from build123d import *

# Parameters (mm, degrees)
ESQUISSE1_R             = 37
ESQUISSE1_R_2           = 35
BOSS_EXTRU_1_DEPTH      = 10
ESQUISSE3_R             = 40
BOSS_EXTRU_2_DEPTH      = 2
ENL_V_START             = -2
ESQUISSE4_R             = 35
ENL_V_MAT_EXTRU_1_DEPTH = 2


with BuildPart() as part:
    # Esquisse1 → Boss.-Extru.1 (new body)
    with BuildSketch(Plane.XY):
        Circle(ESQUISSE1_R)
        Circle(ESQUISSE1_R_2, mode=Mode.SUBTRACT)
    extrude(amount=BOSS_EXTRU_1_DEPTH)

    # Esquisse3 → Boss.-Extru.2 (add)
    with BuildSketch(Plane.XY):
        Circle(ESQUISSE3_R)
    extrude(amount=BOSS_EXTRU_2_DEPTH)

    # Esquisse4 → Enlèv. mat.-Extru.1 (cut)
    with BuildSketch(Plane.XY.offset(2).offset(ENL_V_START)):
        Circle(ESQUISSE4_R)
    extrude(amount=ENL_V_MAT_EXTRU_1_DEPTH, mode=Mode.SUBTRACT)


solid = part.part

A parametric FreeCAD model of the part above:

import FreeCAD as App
import Part
import Sketcher
Q = App.Units.Quantity

doc = App.newDocument("Part")
body = doc.addObject("PartDesign::Body", "Body")

# Sketch on XY plane
sketch1 = body.newObject("Sketcher::SketchObject", "Sketch")
sketch1.AttachmentSupport = (doc.getObject("XY_Plane"), [""])
sketch1.MapMode = "FlatFace"
sketch1.addGeometry([
    Part.Circle(App.Vector(0, 0, 0), App.Vector(0, 0, 1), 37),
    Part.Circle(App.Vector(0, 0, 0), App.Vector(0, 0, 1), 35),
], False)
sketch1.addConstraint([
    Sketcher.Constraint("Coincident", 0, 3, -1, 1),
    Sketcher.Constraint("Coincident", 1, 3, -1, 1),
    Sketcher.Constraint("Diameter", 0, Q("74 mm")),
    Sketcher.Constraint("Diameter", 1, Q("70 mm")),
])
pad1 = body.newObject("PartDesign::Pad", "Pad")
pad1.Profile = sketch1
pad1.Length = 10

# Sketch on XY plane
sketch2 = body.newObject("Sketcher::SketchObject", "Sketch001")
sketch2.AttachmentSupport = (doc.getObject("XY_Plane"), [""])
sketch2.MapMode = "FlatFace"
sketch2.addGeometry(Part.Circle(App.Vector(0, 0, 0), App.Vector(0, 0, 1), 40), False)
sketch2.addConstraint([
    Sketcher.Constraint("Coincident", 0, 3, -1, 1),
    Sketcher.Constraint("Diameter", 0, Q("80 mm")),
])
pad2 = body.newObject("PartDesign::Pad", "Pad001")
pad2.Profile = sketch2
pad2.Length = 2

# Sketch on XY plane
sketch3 = body.newObject("Sketcher::SketchObject", "Sketch002")
sketch3.AttachmentSupport = (doc.getObject("XY_Plane"), [""])
sketch3.MapMode = "FlatFace"
sketch3.addGeometry(Part.Circle(App.Vector(0, 0, 0), App.Vector(0, 0, 1), 35), False)
sketch3.addConstraint([
    Sketcher.Constraint("Coincident", 0, 3, -1, 1),
    Sketcher.Constraint("Diameter", 0, Q("70 mm")),
])
pocket1 = body.newObject("PartDesign::Pocket", "Pocket")
pocket1.Profile = sketch3
pocket1.Length = 2
pocket1.Reversed = True

doc.recompute()
